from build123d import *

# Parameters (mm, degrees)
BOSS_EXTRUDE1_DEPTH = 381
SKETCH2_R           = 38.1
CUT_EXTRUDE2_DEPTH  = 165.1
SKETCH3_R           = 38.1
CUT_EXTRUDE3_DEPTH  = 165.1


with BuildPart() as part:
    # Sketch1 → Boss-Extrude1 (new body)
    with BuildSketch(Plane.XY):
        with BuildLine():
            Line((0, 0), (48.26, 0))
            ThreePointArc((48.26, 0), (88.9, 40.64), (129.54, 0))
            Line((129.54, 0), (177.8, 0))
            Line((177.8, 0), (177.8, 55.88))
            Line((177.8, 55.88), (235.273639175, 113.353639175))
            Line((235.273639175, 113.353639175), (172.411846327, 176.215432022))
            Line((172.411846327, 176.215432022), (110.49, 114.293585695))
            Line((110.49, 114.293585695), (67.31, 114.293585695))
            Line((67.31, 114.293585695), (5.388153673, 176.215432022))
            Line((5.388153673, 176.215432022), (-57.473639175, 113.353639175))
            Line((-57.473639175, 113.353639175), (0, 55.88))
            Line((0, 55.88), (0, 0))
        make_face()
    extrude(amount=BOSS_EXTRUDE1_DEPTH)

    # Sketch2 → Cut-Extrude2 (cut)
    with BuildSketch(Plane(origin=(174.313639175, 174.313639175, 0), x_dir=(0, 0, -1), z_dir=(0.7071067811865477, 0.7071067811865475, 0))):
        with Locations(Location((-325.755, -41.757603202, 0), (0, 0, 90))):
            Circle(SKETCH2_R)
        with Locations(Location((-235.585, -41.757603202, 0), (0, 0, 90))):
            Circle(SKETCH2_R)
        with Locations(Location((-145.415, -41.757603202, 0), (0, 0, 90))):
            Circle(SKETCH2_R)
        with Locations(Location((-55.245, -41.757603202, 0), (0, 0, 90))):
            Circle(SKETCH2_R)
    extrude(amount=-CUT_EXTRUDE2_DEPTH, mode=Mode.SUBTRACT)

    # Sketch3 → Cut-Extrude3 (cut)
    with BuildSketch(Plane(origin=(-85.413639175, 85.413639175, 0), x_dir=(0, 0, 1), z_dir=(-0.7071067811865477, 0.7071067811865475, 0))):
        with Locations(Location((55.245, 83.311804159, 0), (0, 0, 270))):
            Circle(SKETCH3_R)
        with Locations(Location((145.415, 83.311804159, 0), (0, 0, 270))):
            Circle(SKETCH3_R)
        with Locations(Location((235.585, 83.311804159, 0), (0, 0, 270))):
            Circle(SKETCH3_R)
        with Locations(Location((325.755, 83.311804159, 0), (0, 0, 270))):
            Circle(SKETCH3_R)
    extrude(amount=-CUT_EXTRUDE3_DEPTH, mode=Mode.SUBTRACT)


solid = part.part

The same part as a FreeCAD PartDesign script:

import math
import FreeCAD as App
import Part
import Sketcher

V = App.Vector
Q = App.Units.Quantity

doc = App.newDocument("Part")
body = doc.addObject("PartDesign::Body", "Body")

sketch1 = body.newObject("Sketcher::SketchObject", "Sketch")
sketch1.AttachmentSupport = (doc.getObject("XY_Plane"), [""])
sketch1.MapMode = "FlatFace"
sketch1.addGeometry([
    Part.LineSegment(V(0, 0, 0), V(48, 0, 0)),
    Part.ArcOfCircle(Part.Circle(V(89, 0, 0), V(0, 0, 1), 41), math.radians(0), math.radians(180)),
    Part.LineSegment(V(130, 0, 0), V(178, 0, 0)),
    Part.LineSegment(V(178, 0, 0), V(178, 56, 0)),
    Part.LineSegment(V(178, 56, 0), V(235, 113, 0)),
    Part.LineSegment(V(235, 113, 0), V(172, 176, 0)),
    Part.LineSegment(V(172, 176, 0), V(110, 114, 0)),
    Part.LineSegment(V(110, 114, 0), V(67, 114, 0)),
    Part.LineSegment(V(67, 114, 0), V(5, 176, 0)),
    Part.LineSegment(V(5, 176, 0), V(-57, 113, 0)),
    Part.LineSegment(V(-57, 113, 0), V(0, 56, 0)),
    Part.LineSegment(V(0, 56, 0), V(0, 0, 0)),
], False)
sketch1.addConstraint([
    Sketcher.Constraint("Coincident", 0, 2, 1, 2),
    Sketcher.Constraint("Coincident", 1, 1, 2, 1),
    Sketcher.Constraint("Coincident", 2, 2, 3, 1),
    Sketcher.Constraint("Coincident", 3, 2, 4, 1),
    Sketcher.Constraint("Coincident", 4, 2, 5, 1),
    Sketcher.Constraint("Coincident", 5, 2, 6, 1),
    Sketcher.Constraint("Coincident", 6, 2, 7, 1),
    Sketcher.Constraint("Coincident", 7, 2, 8, 1),
    Sketcher.Constraint("Coincident", 8, 2, 9, 1),
    Sketcher.Constraint("Coincident", 9, 2, 10, 1),
    Sketcher.Constraint("Coincident", 10, 2, 11, 1),
    Sketcher.Constraint("Coincident", 11, 2, 0, 1),
    Sketcher.Constraint("Horizontal", 0),
    Sketcher.Constraint("Horizontal", 2),
    Sketcher.Constraint("Vertical", 3),
    Sketcher.Constraint("Horizontal", 7),
    Sketcher.Constraint("Vertical", 11),
    Sketcher.Constraint("Coincident", 11, 2, -1, 1),
    Sketcher.Constraint("PointOnObject", 1, 3, -1),
    Sketcher.Constraint("PointOnObject", 1, 1, -1),
    Sketcher.Constraint("Perpendicular", 4, 5),
    Sketcher.Constraint("Perpendicular", 5, 6),
    Sketcher.Constraint("Perpendicular", 6, 8),
    Sketcher.Constraint("Perpendicular", 8, 9),
    Sketcher.Constraint("Perpendicular", 9, 10),
    Sketcher.Constraint("Horizontal", 5, 2, 8, 2),
    Sketcher.Constraint("Horizontal", 4, 2, 9, 2),
    Sketcher.Constraint("Horizontal", 3, 2, 10, 2),
    Sketcher.Constraint("Equal", 0, 2),
    Sketcher.Constraint("Equal", 6, 8),
    Sketcher.Constraint("Radius", 1, Q("1.6 in")),
    Sketcher.Constraint("DistanceX", 0, 1, 0, 2, Q("1.9 in")),
    Sketcher.Constraint("DistanceX", 7, 2, 7, 1, Q("1.7 in")),
    Sketcher.Constraint("DistanceY", 3, 1, 3, 2, Q("2.2 in")),
    Sketcher.Constraint("Distance", 4, Q("3.2 in")),
    Sketcher.Constraint("Distance", 5, Q("3.5 in")),
])
pad1 = body.newObject("PartDesign::Pad", "Pad")
pad1.Profile = sketch1
pad1.Length = Q("15 in")

sketch2 = body.newObject("Sketcher::SketchObject", "Sketch001")
sketch2.Placement = App.Placement(V(174.313639, 174.313639, 0), App.Rotation(V(0, 0, -1), V(-0.707106781, 0.707106781, 0), V(0.707106781, 0.707106781, 0), "ZXY"))
sketch2.addGeometry([
    Part.Circle(V(-326, -42, 0), V(0, 0, 1), 38),
    Part.Circle(V(-236, -42, 0), V(0, 0, 1), 38),
    Part.Circle(V(-145, -42, 0), V(0, 0, 1), 38),
    Part.Circle(V(-55, -42, 0), V(0, 0, 1), 38),
], False)
sketch2.addConstraint([
    Sketcher.Constraint("Equal", 0, 1),
    Sketcher.Constraint("Equal", 1, 2),
    Sketcher.Constraint("Equal", 2, 3),
    Sketcher.Constraint("Horizontal", 0, 3, 1, 3),
    Sketcher.Constraint("Horizontal", 1, 3, 2, 3),
    Sketcher.Constraint("Horizontal", 2, 3, 3, 3),
    Sketcher.Constraint("Diameter", 0, Q("3 in")),
    Sketcher.Constraint("DistanceX", 0, 3, 2, 3, Q("7.1 in")),
    Sketcher.Constraint("DistanceX", 1, 3, 3, 3, Q("7.1 in")),
    Sketcher.Constraint("DistanceX", 0, 3, 1, 3, Q("3.55 in")),
    Sketcher.Constraint("DistanceX", 0, 3, -1, 1, Q("12.825 in")),
    Sketcher.Constraint("DistanceY", 0, 3, -1, 1, Q("1.6440001 in")),
])
pocket1 = body.newObject("PartDesign::Pocket", "Pocket")
pocket1.Profile = sketch2
pocket1.Length = Q("6.5 in")

sketch3 = body.newObject("Sketcher::SketchObject", "Sketch002")
sketch3.Placement = App.Placement(V(-85.413639, 85.413639, 0), App.Rotation(V(0, 0, 1), V(0.707106781, 0.707106781, 0), V(-0.707106781, 0.707106781, 0), "ZXY"))
sketch3.addGeometry([
    Part.Circle(V(55, 83, 0), V(0, 0, 1), 38),
    Part.Circle(V(145, 83, 0), V(0, 0, 1), 38),
    Part.Circle(V(236, 83, 0), V(0, 0, 1), 38),
    Part.Circle(V(326, 83, 0), V(0, 0, 1), 38),
], False)
sketch3.addConstraint([
    Sketcher.Constraint("Equal", 0, 1),
    Sketcher.Constraint("Equal", 1, 2),
    Sketcher.Constraint("Equal", 2, 3),
    Sketcher.Constraint("Horizontal", 0, 3, 1, 3),
    Sketcher.Constraint("Horizontal", 1, 3, 2, 3),
    Sketcher.Constraint("Horizontal", 2, 3, 3, 3),
    Sketcher.Constraint("Diameter", 0, Q("3 in")),
    Sketcher.Constraint("DistanceX", 0, 3, 2, 3, Q("7.1 in")),
    Sketcher.Constraint("DistanceX", 1, 3, 3, 3, Q("7.1 in")),
    Sketcher.Constraint("DistanceX", 0, 3, 1, 3, Q("3.55 in")),
    Sketcher.Constraint("DistanceX", -1, 1, 0, 3, Q("2.175 in")),
    Sketcher.Constraint("DistanceY", -1, 1, 0, 3, Q("83.311804 mm")),
])
pocket2 = body.newObject("PartDesign::Pocket", "Pocket001")
pocket2.Profile = sketch3
pocket2.Length = Q("6.5 in")

doc.recompute()
